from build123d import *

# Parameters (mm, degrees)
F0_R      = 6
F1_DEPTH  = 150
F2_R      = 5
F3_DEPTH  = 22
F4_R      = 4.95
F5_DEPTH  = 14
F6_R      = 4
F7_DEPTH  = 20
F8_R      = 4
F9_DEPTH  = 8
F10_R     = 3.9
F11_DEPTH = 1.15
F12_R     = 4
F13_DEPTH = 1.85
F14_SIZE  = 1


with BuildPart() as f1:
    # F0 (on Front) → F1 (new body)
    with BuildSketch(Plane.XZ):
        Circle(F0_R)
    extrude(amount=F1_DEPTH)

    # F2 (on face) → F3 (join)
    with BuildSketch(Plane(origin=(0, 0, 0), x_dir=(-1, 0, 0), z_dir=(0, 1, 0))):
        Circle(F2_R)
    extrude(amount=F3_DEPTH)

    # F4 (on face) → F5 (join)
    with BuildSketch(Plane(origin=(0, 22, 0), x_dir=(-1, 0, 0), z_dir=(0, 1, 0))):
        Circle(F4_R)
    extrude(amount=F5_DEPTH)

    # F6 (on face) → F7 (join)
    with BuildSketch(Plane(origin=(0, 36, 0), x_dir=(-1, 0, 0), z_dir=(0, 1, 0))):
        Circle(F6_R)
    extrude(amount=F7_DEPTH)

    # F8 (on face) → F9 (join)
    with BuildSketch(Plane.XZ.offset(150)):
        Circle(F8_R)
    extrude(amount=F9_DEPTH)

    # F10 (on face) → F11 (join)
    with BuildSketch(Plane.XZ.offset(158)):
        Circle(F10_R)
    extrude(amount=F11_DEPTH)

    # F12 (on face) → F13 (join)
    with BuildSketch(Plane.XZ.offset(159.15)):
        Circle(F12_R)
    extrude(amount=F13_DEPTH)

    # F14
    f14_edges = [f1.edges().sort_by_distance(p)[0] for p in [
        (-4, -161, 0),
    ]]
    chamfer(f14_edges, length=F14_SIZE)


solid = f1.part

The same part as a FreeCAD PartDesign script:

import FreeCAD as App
import Part
import Sketcher
from FreeCAD import Vector


def edges_at(feature, points):
    """Names of the edges that pass closest to the given points."""
    edges = feature.Shape.Edges
    near = lambda p: min(range(len(edges)), key=lambda i: edges[i].distToShape(Part.Vertex(*p))[0])
    return sorted({f"Edge{near(p) + 1}" for p in points})

doc = App.newDocument("Part")
body = doc.addObject("PartDesign::Body", "Body")

# Sketch on XZ plane
sketch1 = doc.addObject("Sketcher::SketchObject", "Sketch")
body.addObject(sketch1)
sketch1.AttachmentSupport = (doc.XZ_Plane, [""])
sketch1.MapMode = "FlatFace"
sketch1.addGeometry(Part.Circle(Vector(0, 0, 0), Vector(0, 0, 1), 6), False)
sketch1.addConstraint(Sketcher.Constraint("Coincident", 0, 3, -1, 1))
sketch1.addConstraint(Sketcher.Constraint("Diameter", 0, 12.0))
pad1 = doc.addObject("PartDesign::Pad", "Pad")
body.addObject(pad1)
pad1.Profile = sketch1
pad1.Length = 150

# Sketch on XZ plane
sketch2 = doc.addObject("Sketcher::SketchObject", "Sketch001")
body.addObject(sketch2)
sketch2.AttachmentSupport = (doc.XZ_Plane, [""])
sketch2.MapMode = "FlatFace"
sketch2.addGeometry(Part.Circle(Vector(0, 0, 0), Vector(0, 0, 1), 5), False)
sketch2.addConstraint(Sketcher.Constraint("Coincident", 0, 3, -1, 1))
sketch2.addConstraint(Sketcher.Constraint("Diameter", 0, 10.0))
pad2 = doc.addObject("PartDesign::Pad", "Pad001")
body.addObject(pad2)
pad2.Profile = sketch2
pad2.Length = 22
pad2.Reversed = True

# Sketch on XZ plane
sketch3 = doc.addObject("Sketcher::SketchObject", "Sketch002")
body.addObject(sketch3)
sketch3.AttachmentSupport = (doc.XZ_Plane, [""])
sketch3.MapMode = "FlatFace"
sketch3.AttachmentOffset = App.Placement(Vector(0, 0, -22), App.Rotation())
sketch3.addGeometry(Part.Circle(Vector(0, 0, 0), Vector(0, 0, 1), 5), False)
sketch3.addConstraint(Sketcher.Constraint("Coincident", 0, 3, -1, 1))
sketch3.addConstraint(Sketcher.Constraint("Diameter", 0, 9.9))
pad3 = doc.addObject("PartDesign::Pad", "Pad002")
body.addObject(pad3)
pad3.Profile = sketch3
pad3.Length = 14
pad3.Reversed = True

# Sketch on XZ plane
sketch4 = doc.addObject("Sketcher::SketchObject", "Sketch003")
body.addObject(sketch4)
sketch4.AttachmentSupport = (doc.XZ_Plane, [""])
sketch4.MapMode = "FlatFace"
sketch4.AttachmentOffset = App.Placement(Vector(0, 0, -36), App.Rotation())
sketch4.addGeometry(Part.Circle(Vector(0, 0, 0), Vector(0, 0, 1), 4), False)
sketch4.addConstraint(Sketcher.Constraint("Coincident", 0, 3, -1, 1))
sketch4.addConstraint(Sketcher.Constraint("Diameter", 0, 8.0))
pad4 = doc.addObject("PartDesign::Pad", "Pad003")
body.addObject(pad4)
pad4.Profile = sketch4
pad4.Length = 20
pad4.Reversed = True

# Sketch on XZ plane
sketch5 = doc.addObject("Sketcher::SketchObject", "Sketch004")
body.addObject(sketch5)
sketch5.AttachmentSupport = (doc.XZ_Plane, [""])
sketch5.MapMode = "FlatFace"
sketch5.AttachmentOffset = App.Placement(Vector(0, 0, 150), App.Rotation())
sketch5.addGeometry(Part.Circle(Vector(0, 0, 0), Vector(0, 0, 1), 4), False)
sketch5.addConstraint(Sketcher.Constraint("Coincident", 0, 3, -1, 1))
sketch5.addConstraint(Sketcher.Constraint("Diameter", 0, 8.0))
pad5 = doc.addObject("PartDesign::Pad", "Pad004")
body.addObject(pad5)
pad5.Profile = sketch5
pad5.Length = 8

# Sketch on XZ plane
sketch6 = doc.addObject("Sketcher::SketchObject", "Sketch005")
body.addObject(sketch6)
sketch6.AttachmentSupport = (doc.XZ_Plane, [""])
sketch6.MapMode = "FlatFace"
sketch6.AttachmentOffset = App.Placement(Vector(0, 0, 158), App.Rotation())
sketch6.addGeometry(Part.Circle(Vector(0, 0, 0), Vector(0, 0, 1), 3.9), False)
sketch6.addConstraint(Sketcher.Constraint("Coincident", 0, 3, -1, 1))
sketch6.addConstraint(Sketcher.Constraint("Diameter", 0, 7.8))
pad6 = doc.addObject("PartDesign::Pad", "Pad005")
body.addObject(pad6)
pad6.Profile = sketch6
pad6.Length = 1.15

# Sketch on XZ plane
sketch7 = doc.addObject("Sketcher::SketchObject", "Sketch006")
body.addObject(sketch7)
sketch7.AttachmentSupport = (doc.XZ_Plane, [""])
sketch7.MapMode = "FlatFace"
sketch7.AttachmentOffset = App.Placement(Vector(0, 0, 159.15), App.Rotation())
sketch7.addGeometry(Part.Circle(Vector(0, 0, 0), Vector(0, 0, 1), 4), False)
sketch7.addConstraint(Sketcher.Constraint("Coincident", 0, 3, -1, 1))
sketch7.addConstraint(Sketcher.Constraint("Diameter", 0, 8.0))
pad7 = doc.addObject("PartDesign::Pad", "Pad006")
body.addObject(pad7)
pad7.Profile = sketch7
pad7.Length = 1.85
doc.recompute()

chamfer = doc.addObject("PartDesign::Chamfer", "Chamfer")
body.addObject(chamfer)
chamfer.Base = (pad7, edges_at(pad7, [(-4, -161, 0)]))
chamfer.Size = 1

doc.recompute()
